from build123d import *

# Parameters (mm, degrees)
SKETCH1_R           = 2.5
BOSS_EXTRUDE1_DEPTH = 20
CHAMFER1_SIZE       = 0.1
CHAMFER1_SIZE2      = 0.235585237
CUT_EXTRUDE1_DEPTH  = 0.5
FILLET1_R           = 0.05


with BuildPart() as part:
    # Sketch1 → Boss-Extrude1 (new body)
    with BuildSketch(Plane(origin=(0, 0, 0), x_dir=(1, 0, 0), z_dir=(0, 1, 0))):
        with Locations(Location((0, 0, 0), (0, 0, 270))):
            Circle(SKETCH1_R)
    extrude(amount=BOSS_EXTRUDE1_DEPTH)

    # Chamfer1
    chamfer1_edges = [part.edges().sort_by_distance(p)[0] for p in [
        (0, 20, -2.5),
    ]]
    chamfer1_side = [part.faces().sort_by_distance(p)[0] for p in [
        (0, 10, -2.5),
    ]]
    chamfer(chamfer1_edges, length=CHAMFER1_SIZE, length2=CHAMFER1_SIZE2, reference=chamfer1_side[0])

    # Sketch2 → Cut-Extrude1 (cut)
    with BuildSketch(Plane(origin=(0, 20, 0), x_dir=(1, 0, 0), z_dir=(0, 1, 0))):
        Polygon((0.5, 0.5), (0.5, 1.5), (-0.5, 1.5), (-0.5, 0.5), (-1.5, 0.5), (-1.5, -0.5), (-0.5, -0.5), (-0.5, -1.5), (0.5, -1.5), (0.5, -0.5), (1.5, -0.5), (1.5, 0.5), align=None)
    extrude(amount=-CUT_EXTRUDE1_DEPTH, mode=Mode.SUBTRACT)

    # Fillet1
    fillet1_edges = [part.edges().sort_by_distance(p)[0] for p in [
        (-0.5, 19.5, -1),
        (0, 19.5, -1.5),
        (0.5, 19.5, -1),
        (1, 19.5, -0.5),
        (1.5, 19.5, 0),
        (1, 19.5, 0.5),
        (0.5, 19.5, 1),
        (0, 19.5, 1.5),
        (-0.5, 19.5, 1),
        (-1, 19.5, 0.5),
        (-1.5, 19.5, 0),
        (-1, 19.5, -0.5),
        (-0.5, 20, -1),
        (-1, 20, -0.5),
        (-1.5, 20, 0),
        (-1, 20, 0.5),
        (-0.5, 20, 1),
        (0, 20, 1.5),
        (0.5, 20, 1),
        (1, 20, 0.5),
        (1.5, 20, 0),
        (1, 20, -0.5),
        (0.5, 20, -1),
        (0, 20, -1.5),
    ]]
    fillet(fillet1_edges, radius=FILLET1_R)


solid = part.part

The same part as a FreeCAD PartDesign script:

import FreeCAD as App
import Part
import Sketcher

V = App.Vector
Q = App.Units.Quantity


def edges_at(feature, points):
    """Names of the edges that pass closest to the given points."""
    edges = feature.Shape.Edges
    near = lambda p: min(range(len(edges)), key=lambda i: edges[i].distToShape(Part.Vertex(*p))[0])
    return sorted({f"Edge{near(p) + 1}" for p in points})


def add_polygon(sketch, points):
    """Adds a closed chain of lines whose ends are joined by coincident constraints."""
    first, n = sketch.GeometryCount, len(points)
    for a, b in zip(points, points[1:] + points[:1]):
        sketch.addGeometry(Part.LineSegment(App.Vector(*a, 0), App.Vector(*b, 0)), False)
    for i in range(n):
        sketch.addConstraint(Sketcher.Constraint("Coincident", first + i, 2, first + (i + 1) % n, 1))

doc = App.newDocument("Part")
body = doc.addObject("PartDesign::Body", "Body")

# Sketch on XZ plane
sketch1 = body.newObject("Sketcher::SketchObject", "Sketch")
sketch1.AttachmentSupport = (doc.getObject("XZ_Plane"), [""])
sketch1.MapMode = "FlatFace"
sketch1.addGeometry(Part.Circle(V(0, 0, 0), V(0, 0, 1), 2.5), False)
sketch1.addConstraint([
    Sketcher.Constraint("Coincident", 0, 3, -1, 1),
    Sketcher.Constraint("Diameter", 0, Q("5 mm")),
])
pad1 = body.newObject("PartDesign::Pad", "Pad")
pad1.Profile = sketch1
pad1.Length = 20
pad1.Reversed = True
doc.recompute()

chamfer = body.newObject("PartDesign::Chamfer", "Chamfer")
chamfer.Base = (pad1, edges_at(pad1, [(0, 20, -2.5)]))
chamfer.ChamferType = "Two distances"
chamfer.Size = 0.1
chamfer.Size2 = 0.235585

# Sketch on XZ plane
sketch2 = body.newObject("Sketcher::SketchObject", "Sketch001")
sketch2.AttachmentSupport = (doc.getObject("XZ_Plane"), [""])
sketch2.MapMode = "FlatFace"
sketch2.AttachmentOffset = App.Placement(V(0, 0, -20), App.Rotation())
add_polygon(sketch2, [(0.5, -0.5), (0.5, -1.5), (-0.5, -1.5), (-0.5, -0.5), (-1.5, -0.5), (-1.5, 0.5), (-0.5, 0.5), (-0.5, 1.5), (0.5, 1.5), (0.5, 0.5), (1.5, 0.5), (1.5, -0.5)])  # lines 0-11
sketch2.addConstraint([
    Sketcher.Constraint("Vertical", 0),
    Sketcher.Constraint("Horizontal", 1),
    Sketcher.Constraint("Vertical", 2),
    Sketcher.Constraint("Horizontal", 3),
    Sketcher.Constraint("Vertical", 4),
    Sketcher.Constraint("Horizontal", 5),
    Sketcher.Constraint("Vertical", 6),
    Sketcher.Constraint("Horizontal", 7),
    Sketcher.Constraint("Vertical", 8),
    Sketcher.Constraint("Horizontal", 9),
    Sketcher.Constraint("Vertical", 10),
    Sketcher.Constraint("Horizontal", 11),
    Sketcher.Constraint("Symmetric", 0, 2, 6, 2, -1, 1),
    Sketcher.Constraint("Symmetric", 2, 2, 8, 2, -1, 1),
    Sketcher.Constraint("Symmetric", 4, 2, 10, 2, -1, 1),
    Sketcher.Constraint("Symmetric", 5, 2, 8, 2, -2),
    Sketcher.Constraint("Equal", 1, 3),
    Sketcher.Constraint("Equal", 11, 0),
    Sketcher.Constraint("Equal", 2, 4),
    Sketcher.Constraint("DistanceX", 1, 2, 1, 1, Q("1 mm")),
])
pocket1 = body.newObject("PartDesign::Pocket", "Pocket")
pocket1.Profile = sketch2
pocket1.Length = 0.5
pocket1.Reversed = True
doc.recompute()

fillet = body.newObject("PartDesign::Fillet", "Fillet")
fillet.Base = (pocket1, edges_at(pocket1, [
    (-0.5, 19.5, -1),
    (0, 19.5, -1.5),
    (0.5, 19.5, -1),
    (1, 19.5, -0.5),
    (1.5, 19.5, 0),
    (1, 19.5, 0.5),
    (0.5, 19.5, 1),
    (0, 19.5, 1.5),
    (-0.5, 19.5, 1),
    (-1, 19.5, 0.5),
    (-1.5, 19.5, 0),
    (-1, 19.5, -0.5),
    (-0.5, 20, -1),
    (-1, 20, -0.5),
    (-1.5, 20, 0),
    (-1, 20, 0.5),
    (-0.5, 20, 1),
    (0, 20, 1.5),
    (0.5, 20, 1),
    (1, 20, 0.5),
    (1.5, 20, 0),
    (1, 20, -0.5),
    (0.5, 20, -1),
    (0, 20, -1.5),
]))
fillet.Radius = 0.05

doc.recompute()
